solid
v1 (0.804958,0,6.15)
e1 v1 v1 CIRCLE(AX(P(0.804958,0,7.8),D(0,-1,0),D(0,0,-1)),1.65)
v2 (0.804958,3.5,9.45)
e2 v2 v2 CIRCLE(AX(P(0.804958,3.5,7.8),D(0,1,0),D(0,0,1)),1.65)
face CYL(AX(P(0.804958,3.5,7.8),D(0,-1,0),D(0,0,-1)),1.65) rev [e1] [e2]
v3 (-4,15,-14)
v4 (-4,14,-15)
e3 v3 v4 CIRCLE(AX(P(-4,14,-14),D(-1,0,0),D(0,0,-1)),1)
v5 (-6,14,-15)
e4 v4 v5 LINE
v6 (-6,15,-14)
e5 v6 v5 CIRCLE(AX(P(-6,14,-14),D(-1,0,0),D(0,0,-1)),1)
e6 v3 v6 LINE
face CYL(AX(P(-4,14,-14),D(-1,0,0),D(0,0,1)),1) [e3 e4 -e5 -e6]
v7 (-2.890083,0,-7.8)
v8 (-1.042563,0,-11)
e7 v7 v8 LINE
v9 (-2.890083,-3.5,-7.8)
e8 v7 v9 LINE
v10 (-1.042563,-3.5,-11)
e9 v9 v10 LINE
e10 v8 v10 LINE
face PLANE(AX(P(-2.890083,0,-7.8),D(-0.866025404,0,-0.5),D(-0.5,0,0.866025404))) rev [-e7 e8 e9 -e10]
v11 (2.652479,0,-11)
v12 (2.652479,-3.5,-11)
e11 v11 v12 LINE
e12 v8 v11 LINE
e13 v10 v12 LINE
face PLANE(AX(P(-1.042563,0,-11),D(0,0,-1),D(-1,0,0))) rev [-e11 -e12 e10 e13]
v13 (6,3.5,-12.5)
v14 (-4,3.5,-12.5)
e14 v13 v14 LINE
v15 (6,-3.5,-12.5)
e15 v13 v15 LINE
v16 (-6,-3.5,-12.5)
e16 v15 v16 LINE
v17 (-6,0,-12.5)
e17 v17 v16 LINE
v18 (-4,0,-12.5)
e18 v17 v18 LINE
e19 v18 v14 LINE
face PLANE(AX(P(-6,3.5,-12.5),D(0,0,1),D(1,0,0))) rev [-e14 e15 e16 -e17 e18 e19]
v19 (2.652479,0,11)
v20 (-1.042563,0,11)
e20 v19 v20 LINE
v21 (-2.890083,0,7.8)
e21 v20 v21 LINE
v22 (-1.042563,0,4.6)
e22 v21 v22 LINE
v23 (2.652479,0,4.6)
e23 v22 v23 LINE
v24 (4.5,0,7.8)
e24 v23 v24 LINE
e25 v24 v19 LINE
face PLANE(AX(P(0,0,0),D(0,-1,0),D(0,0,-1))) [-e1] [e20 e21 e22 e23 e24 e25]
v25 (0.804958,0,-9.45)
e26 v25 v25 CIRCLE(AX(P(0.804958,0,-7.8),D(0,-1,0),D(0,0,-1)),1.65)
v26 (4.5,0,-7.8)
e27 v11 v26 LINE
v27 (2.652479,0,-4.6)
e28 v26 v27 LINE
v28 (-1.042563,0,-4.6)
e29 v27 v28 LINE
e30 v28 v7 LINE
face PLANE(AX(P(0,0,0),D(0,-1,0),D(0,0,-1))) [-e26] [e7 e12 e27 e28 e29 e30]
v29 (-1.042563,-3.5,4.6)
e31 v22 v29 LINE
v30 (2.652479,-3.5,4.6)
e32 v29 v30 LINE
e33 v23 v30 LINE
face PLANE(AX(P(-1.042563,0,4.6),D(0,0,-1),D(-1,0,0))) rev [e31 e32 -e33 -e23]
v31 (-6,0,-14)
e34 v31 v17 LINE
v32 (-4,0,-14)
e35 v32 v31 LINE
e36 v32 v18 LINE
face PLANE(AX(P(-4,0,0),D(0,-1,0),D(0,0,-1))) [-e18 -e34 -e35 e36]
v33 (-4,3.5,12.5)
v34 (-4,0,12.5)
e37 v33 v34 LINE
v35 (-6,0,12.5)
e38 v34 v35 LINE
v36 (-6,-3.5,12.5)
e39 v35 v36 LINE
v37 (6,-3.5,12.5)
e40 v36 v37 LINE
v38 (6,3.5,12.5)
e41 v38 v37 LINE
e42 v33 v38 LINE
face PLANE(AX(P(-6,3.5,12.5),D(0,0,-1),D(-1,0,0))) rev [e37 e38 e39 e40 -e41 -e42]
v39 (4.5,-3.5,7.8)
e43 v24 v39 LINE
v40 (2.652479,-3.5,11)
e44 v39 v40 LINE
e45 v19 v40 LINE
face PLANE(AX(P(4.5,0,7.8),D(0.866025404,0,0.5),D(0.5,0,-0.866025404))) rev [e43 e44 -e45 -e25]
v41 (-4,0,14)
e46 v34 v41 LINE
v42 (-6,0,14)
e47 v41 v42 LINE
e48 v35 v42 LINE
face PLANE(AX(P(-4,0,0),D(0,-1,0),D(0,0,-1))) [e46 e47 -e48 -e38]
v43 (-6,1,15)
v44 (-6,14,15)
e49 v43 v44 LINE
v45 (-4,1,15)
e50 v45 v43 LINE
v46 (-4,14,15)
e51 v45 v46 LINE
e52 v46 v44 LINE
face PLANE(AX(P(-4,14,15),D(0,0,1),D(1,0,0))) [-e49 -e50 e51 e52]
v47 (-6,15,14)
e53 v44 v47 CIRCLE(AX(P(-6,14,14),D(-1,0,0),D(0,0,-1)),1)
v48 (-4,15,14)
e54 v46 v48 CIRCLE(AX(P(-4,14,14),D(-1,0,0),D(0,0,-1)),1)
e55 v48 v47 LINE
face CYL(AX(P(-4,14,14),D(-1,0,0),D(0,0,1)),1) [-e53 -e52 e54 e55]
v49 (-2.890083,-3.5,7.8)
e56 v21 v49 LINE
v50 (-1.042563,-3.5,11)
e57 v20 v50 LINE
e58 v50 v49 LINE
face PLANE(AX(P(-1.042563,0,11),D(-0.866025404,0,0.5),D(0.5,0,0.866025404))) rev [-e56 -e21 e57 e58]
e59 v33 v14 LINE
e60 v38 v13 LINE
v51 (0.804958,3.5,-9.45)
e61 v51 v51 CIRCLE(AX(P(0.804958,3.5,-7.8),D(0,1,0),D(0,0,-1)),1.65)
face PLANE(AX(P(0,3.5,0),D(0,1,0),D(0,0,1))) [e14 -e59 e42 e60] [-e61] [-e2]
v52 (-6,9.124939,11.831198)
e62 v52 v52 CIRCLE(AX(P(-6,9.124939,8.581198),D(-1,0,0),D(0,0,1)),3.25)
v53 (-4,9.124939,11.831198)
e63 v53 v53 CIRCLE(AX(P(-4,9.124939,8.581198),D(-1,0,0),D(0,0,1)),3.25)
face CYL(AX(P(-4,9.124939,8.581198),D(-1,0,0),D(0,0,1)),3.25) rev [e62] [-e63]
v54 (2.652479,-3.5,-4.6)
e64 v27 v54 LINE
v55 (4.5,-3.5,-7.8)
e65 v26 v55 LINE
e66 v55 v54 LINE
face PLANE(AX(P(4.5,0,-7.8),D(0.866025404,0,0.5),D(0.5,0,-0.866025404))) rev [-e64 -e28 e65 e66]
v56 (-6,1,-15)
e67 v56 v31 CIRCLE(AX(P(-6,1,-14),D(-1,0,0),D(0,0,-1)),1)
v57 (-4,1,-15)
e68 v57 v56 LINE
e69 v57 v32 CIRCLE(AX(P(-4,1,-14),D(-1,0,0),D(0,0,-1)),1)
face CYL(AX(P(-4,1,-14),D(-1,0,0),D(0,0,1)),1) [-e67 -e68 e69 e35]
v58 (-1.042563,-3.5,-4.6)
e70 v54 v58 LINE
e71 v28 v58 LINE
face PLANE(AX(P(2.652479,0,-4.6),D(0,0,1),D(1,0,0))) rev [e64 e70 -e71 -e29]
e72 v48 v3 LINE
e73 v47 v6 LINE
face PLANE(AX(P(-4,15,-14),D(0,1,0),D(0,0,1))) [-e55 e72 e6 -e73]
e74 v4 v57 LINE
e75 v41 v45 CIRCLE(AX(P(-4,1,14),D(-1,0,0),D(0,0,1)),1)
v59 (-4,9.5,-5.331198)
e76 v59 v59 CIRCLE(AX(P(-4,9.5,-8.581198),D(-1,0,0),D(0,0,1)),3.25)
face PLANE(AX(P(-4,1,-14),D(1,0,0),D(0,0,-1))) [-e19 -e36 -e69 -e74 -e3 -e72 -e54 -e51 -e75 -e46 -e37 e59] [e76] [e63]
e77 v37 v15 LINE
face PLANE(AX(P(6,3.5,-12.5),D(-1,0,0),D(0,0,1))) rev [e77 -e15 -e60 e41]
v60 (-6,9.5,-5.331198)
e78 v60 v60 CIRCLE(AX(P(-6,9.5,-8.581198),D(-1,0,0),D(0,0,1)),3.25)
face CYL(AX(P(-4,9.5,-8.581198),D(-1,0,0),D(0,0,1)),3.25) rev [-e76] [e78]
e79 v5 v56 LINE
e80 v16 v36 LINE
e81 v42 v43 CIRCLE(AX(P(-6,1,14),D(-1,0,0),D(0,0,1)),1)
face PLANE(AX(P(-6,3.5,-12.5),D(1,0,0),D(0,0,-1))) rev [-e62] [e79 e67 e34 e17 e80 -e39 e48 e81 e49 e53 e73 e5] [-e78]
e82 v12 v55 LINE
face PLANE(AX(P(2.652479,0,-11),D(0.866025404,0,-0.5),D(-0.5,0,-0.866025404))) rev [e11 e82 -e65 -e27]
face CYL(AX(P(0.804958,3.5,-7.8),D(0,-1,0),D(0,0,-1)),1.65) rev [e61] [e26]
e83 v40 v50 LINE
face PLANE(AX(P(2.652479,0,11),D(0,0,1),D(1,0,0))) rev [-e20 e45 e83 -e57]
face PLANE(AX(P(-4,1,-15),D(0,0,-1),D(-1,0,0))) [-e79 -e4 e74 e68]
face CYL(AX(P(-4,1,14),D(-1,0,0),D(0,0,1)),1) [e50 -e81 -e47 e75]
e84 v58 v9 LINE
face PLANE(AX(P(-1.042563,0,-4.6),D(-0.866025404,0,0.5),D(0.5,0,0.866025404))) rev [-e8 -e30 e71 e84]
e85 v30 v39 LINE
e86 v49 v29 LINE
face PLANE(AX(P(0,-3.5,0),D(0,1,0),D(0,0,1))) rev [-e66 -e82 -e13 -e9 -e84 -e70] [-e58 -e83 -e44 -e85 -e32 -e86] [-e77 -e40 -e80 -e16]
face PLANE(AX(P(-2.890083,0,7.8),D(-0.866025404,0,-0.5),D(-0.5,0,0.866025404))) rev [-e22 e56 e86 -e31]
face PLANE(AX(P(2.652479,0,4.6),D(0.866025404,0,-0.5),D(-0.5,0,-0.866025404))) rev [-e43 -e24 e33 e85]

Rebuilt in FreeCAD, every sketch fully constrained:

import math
import FreeCAD as App
import Part
import Sketcher
Q = App.Units.Quantity

doc = App.newDocument("Part")
body = doc.addObject("PartDesign::Body", "Body")

sketch1 = body.newObject("Sketcher::SketchObject", "Sketch")
sketch1.AttachmentSupport = (doc.getObject("XZ_Plane"), [""])
sketch1.MapMode = "FlatFace"
sketch1.addGeometry([
    Part.LineSegment(App.Vector(-6, -12.5, 0), App.Vector(-6, 12.5, 0)),
    Part.LineSegment(App.Vector(-6, 12.5, 0), App.Vector(6, 12.5, 0)),
    Part.LineSegment(App.Vector(6, 12.5, 0), App.Vector(6, -12.5, 0)),
    Part.LineSegment(App.Vector(6, -12.5, 0), App.Vector(-6, -12.5, 0)),
    Part.Circle(App.Vector(0.804958, 7.8, 0), App.Vector(0, 0, 1), 1.65),
    Part.Circle(App.Vector(0.804958, -7.8, 0), App.Vector(0, 0, 1), 1.65),
], False)
sketch1.addConstraint([
    Sketcher.Constraint("Coincident", 0, 2, 1, 1),
    Sketcher.Constraint("Coincident", 1, 2, 2, 1),
    Sketcher.Constraint("Coincident", 2, 2, 3, 1),
    Sketcher.Constraint("Coincident", 3, 2, 0, 1),
    Sketcher.Constraint("Vertical", 0),
    Sketcher.Constraint("Horizontal", 1),
    Sketcher.Constraint("Vertical", 2),
    Sketcher.Constraint("Horizontal", 3),
    Sketcher.Constraint("Equal", 4, 5),
    Sketcher.Constraint("Symmetric", 0, 2, 2, 2, -1, 1),
    Sketcher.Constraint("Symmetric", 4, 3, 5, 3, -1),
    Sketcher.Constraint("Diameter", 4, 3.3),
    Sketcher.Constraint("DistanceX", 1, 1, 1, 2, 12.0),
    Sketcher.Constraint("DistanceY", 0, 1, 0, 2, 25.0),
    Sketcher.Constraint("DistanceY", -1, 1, 4, 3, 7.8),
    Sketcher.Constraint("DistanceX", -1, 1, 4, 3, 0.804958),
])
pad1 = body.newObject("PartDesign::Pad", "Pad")
pad1.Profile = sketch1
pad1.Length = 7
pad1.Midplane = True

sketch2 = body.newObject("Sketcher::SketchObject", "Sketch001")
sketch2.AttachmentSupport = (doc.getObject("XZ_Plane"), [""])
sketch2.MapMode = "FlatFace"
sketch2.AttachmentOffset = App.Placement(App.Vector(0, 0, 3.5), App.Rotation())
sketch2.addGeometry([
    Part.LineSegment(App.Vector(2.652479, 4.6, 0), App.Vector(4.5, 7.8, 0)),
    Part.LineSegment(App.Vector(4.5, 7.8, 0), App.Vector(2.652479, 11, 0)),
    Part.LineSegment(App.Vector(2.652479, 11, 0), App.Vector(-1.042563, 11, 0)),
    Part.LineSegment(App.Vector(-1.042563, 11, 0), App.Vector(-2.890083, 7.8, 0)),
    Part.LineSegment(App.Vector(-2.890083, 7.8, 0), App.Vector(-1.042563, 4.6, 0)),
    Part.LineSegment(App.Vector(-1.042563, 4.6, 0), App.Vector(2.652479, 4.6, 0)),
    Part.LineSegment(App.Vector(2.652479, -11, 0), App.Vector(4.5, -7.8, 0)),
    Part.LineSegment(App.Vector(4.5, -7.8, 0), App.Vector(2.652479, -4.6, 0)),
    Part.LineSegment(App.Vector(2.652479, -4.6, 0), App.Vector(-1.042563, -4.6, 0)),
    Part.LineSegment(App.Vector(-1.042563, -4.6, 0), App.Vector(-2.890083, -7.8, 0)),
    Part.LineSegment(App.Vector(-2.890083, -7.8, 0), App.Vector(-1.042563, -11, 0)),
    Part.LineSegment(App.Vector(-1.042563, -11, 0), App.Vector(2.652479, -11, 0)),
], False)
sketch2.addConstraint([
    Sketcher.Constraint("Coincident", 0, 2, 1, 1),
    Sketcher.Constraint("Coincident", 1, 2, 2, 1),
    Sketcher.Constraint("Coincident", 2, 2, 3, 1),
    Sketcher.Constraint("Coincident", 3, 2, 4, 1),
    Sketcher.Constraint("Coincident", 4, 2, 5, 1),
    Sketcher.Constraint("Coincident", 5, 2, 0, 1),
    Sketcher.Constraint("Coincident", 6, 2, 7, 1),
    Sketcher.Constraint("Coincident", 7, 2, 8, 1),
    Sketcher.Constraint("Coincident", 8, 2, 9, 1),
    Sketcher.Constraint("Coincident", 9, 2, 10, 1),
    Sketcher.Constraint("Coincident", 10, 2, 11, 1),
    Sketcher.Constraint("Coincident", 11, 2, 6, 1),
    Sketcher.Constraint("Horizontal", 2),
    Sketcher.Constraint("Horizontal", 5),
    Sketcher.Constraint("Horizontal", 8),
    Sketcher.Constraint("Horizontal", 11),
    Sketcher.Constraint("Symmetric", 0, 2, 6, 2, -1),
    Sketcher.Constraint("Symmetric", 5, 2, 7, 2, -1),
    Sketcher.Constraint("Symmetric", 3, 2, 9, 2, -1),
    Sketcher.Constraint("Symmetric", 2, 2, 10, 2, -1),
    Sketcher.Constraint("Parallel", 0, 3),
    Sketcher.Constraint("Parallel", 1, 4),
    Sketcher.Constraint("Parallel", 3, 6),
    Sketcher.Constraint("Parallel", 4, 7),
    Sketcher.Constraint("Parallel", 6, 9),
    Sketcher.Constraint("Horizontal", 0, 2, 3, 2),
    Sketcher.Constraint("Vertical", 2, 2, 4, 2),
    Sketcher.Constraint("Angle", 0, Q("60 deg")),
    Sketcher.Constraint("DistanceY", -1, 1, 1, 2, 11.0),
    Sketcher.Constraint("DistanceX", -1, 1, 0, 2, 4.5),
    Sketcher.Constraint("DistanceY", -1, 1, 0, 2, 7.8),
    Sketcher.Constraint("DistanceX", 2, 2, 2, 1, 3.695042),
])
pocket1 = body.newObject("PartDesign::Pocket", "Pocket")
pocket1.Profile = sketch2
pocket1.Length = 3.5

sketch3 = body.newObject("Sketcher::SketchObject", "Sketch002")
sketch3.AttachmentSupport = (doc.getObject("YZ_Plane"), [""])
sketch3.MapMode = "FlatFace"
sketch3.AttachmentOffset = App.Placement(App.Vector(0, 0, -6), App.Rotation())
sketch3.addGeometry([
    Part.ArcOfCircle(Part.Circle(App.Vector(1, 14, 0), App.Vector(0, 0, 1), 1), math.radians(90), math.radians(180)),
    Part.LineSegment(App.Vector(1, 15, 0), App.Vector(14, 15, 0)),
    Part.ArcOfCircle(Part.Circle(App.Vector(14, 14, 0), App.Vector(0, 0, 1), 1), math.radians(0), math.radians(90)),
    Part.LineSegment(App.Vector(15, 14, 0), App.Vector(15, -14, 0)),
    Part.ArcOfCircle(Part.Circle(App.Vector(14, -14, 0), App.Vector(0, 0, 1), 1), math.radians(-90), math.radians(0)),
    Part.LineSegment(App.Vector(14, -15, 0), App.Vector(1, -15, 0)),
    Part.ArcOfCircle(Part.Circle(App.Vector(1, -14, 0), App.Vector(0, 0, 1), 1), math.radians(-180), math.radians(-90)),
    Part.LineSegment(App.Vector(0, -14, 0), App.Vector(0, 14, 0)),
    Part.Circle(App.Vector(9.124939, 8.581198, 0), App.Vector(0, 0, 1), 3.25),
    Part.Circle(App.Vector(9.5, -8.581198, 0), App.Vector(0, 0, 1), 3.25),
], False)
sketch3.addConstraint([
    Sketcher.Constraint("Tangent", 0, 1, 1, 1),
    Sketcher.Constraint("Tangent", 1, 2, 2, 2),
    Sketcher.Constraint("Tangent", 2, 1, 3, 1),
    Sketcher.Constraint("Tangent", 3, 2, 4, 2),
    Sketcher.Constraint("Tangent", 4, 1, 5, 1),
    Sketcher.Constraint("Tangent", 5, 2, 6, 2),
    Sketcher.Constraint("Tangent", 6, 1, 7, 1),
    Sketcher.Constraint("Tangent", 7, 2, 0, 2),
    Sketcher.Constraint("Horizontal", 1),
    Sketcher.Constraint("Vertical", 3),
    Sketcher.Constraint("Horizontal", 5),
    Sketcher.Constraint("Vertical", 7),
    Sketcher.Constraint("Equal", 0, 2),
    Sketcher.Constraint("Equal", 2, 4),
    Sketcher.Constraint("Equal", 4, 6),
    Sketcher.Constraint("Equal", 8, 9),
    Sketcher.Constraint("Symmetric", 6, 1, 7, 2, -1, 1),
    Sketcher.Constraint("Radius", 0, 1.0),
    Sketcher.Constraint("Diameter", 8, 6.5),
    Sketcher.Constraint("DistanceX", 1, 1, 1, 2, 13.0),
    Sketcher.Constraint("DistanceY", 3, 2, 3, 1, 28.0),
    Sketcher.Constraint("DistanceX", -1, 1, 9, 3, 9.5),
    Sketcher.Constraint("DistanceX", -1, 1, 8, 3, 9.124939),
    Sketcher.Constraint("DistanceY", -1, 1, 8, 3, 8.581198),
    Sketcher.Constraint("DistanceY", 9, 3, -1, 1, 8.581198),
])
pad2 = body.newObject("PartDesign::Pad", "Pad001")
pad2.Profile = sketch3
pad2.Length = 2

doc.recompute()
